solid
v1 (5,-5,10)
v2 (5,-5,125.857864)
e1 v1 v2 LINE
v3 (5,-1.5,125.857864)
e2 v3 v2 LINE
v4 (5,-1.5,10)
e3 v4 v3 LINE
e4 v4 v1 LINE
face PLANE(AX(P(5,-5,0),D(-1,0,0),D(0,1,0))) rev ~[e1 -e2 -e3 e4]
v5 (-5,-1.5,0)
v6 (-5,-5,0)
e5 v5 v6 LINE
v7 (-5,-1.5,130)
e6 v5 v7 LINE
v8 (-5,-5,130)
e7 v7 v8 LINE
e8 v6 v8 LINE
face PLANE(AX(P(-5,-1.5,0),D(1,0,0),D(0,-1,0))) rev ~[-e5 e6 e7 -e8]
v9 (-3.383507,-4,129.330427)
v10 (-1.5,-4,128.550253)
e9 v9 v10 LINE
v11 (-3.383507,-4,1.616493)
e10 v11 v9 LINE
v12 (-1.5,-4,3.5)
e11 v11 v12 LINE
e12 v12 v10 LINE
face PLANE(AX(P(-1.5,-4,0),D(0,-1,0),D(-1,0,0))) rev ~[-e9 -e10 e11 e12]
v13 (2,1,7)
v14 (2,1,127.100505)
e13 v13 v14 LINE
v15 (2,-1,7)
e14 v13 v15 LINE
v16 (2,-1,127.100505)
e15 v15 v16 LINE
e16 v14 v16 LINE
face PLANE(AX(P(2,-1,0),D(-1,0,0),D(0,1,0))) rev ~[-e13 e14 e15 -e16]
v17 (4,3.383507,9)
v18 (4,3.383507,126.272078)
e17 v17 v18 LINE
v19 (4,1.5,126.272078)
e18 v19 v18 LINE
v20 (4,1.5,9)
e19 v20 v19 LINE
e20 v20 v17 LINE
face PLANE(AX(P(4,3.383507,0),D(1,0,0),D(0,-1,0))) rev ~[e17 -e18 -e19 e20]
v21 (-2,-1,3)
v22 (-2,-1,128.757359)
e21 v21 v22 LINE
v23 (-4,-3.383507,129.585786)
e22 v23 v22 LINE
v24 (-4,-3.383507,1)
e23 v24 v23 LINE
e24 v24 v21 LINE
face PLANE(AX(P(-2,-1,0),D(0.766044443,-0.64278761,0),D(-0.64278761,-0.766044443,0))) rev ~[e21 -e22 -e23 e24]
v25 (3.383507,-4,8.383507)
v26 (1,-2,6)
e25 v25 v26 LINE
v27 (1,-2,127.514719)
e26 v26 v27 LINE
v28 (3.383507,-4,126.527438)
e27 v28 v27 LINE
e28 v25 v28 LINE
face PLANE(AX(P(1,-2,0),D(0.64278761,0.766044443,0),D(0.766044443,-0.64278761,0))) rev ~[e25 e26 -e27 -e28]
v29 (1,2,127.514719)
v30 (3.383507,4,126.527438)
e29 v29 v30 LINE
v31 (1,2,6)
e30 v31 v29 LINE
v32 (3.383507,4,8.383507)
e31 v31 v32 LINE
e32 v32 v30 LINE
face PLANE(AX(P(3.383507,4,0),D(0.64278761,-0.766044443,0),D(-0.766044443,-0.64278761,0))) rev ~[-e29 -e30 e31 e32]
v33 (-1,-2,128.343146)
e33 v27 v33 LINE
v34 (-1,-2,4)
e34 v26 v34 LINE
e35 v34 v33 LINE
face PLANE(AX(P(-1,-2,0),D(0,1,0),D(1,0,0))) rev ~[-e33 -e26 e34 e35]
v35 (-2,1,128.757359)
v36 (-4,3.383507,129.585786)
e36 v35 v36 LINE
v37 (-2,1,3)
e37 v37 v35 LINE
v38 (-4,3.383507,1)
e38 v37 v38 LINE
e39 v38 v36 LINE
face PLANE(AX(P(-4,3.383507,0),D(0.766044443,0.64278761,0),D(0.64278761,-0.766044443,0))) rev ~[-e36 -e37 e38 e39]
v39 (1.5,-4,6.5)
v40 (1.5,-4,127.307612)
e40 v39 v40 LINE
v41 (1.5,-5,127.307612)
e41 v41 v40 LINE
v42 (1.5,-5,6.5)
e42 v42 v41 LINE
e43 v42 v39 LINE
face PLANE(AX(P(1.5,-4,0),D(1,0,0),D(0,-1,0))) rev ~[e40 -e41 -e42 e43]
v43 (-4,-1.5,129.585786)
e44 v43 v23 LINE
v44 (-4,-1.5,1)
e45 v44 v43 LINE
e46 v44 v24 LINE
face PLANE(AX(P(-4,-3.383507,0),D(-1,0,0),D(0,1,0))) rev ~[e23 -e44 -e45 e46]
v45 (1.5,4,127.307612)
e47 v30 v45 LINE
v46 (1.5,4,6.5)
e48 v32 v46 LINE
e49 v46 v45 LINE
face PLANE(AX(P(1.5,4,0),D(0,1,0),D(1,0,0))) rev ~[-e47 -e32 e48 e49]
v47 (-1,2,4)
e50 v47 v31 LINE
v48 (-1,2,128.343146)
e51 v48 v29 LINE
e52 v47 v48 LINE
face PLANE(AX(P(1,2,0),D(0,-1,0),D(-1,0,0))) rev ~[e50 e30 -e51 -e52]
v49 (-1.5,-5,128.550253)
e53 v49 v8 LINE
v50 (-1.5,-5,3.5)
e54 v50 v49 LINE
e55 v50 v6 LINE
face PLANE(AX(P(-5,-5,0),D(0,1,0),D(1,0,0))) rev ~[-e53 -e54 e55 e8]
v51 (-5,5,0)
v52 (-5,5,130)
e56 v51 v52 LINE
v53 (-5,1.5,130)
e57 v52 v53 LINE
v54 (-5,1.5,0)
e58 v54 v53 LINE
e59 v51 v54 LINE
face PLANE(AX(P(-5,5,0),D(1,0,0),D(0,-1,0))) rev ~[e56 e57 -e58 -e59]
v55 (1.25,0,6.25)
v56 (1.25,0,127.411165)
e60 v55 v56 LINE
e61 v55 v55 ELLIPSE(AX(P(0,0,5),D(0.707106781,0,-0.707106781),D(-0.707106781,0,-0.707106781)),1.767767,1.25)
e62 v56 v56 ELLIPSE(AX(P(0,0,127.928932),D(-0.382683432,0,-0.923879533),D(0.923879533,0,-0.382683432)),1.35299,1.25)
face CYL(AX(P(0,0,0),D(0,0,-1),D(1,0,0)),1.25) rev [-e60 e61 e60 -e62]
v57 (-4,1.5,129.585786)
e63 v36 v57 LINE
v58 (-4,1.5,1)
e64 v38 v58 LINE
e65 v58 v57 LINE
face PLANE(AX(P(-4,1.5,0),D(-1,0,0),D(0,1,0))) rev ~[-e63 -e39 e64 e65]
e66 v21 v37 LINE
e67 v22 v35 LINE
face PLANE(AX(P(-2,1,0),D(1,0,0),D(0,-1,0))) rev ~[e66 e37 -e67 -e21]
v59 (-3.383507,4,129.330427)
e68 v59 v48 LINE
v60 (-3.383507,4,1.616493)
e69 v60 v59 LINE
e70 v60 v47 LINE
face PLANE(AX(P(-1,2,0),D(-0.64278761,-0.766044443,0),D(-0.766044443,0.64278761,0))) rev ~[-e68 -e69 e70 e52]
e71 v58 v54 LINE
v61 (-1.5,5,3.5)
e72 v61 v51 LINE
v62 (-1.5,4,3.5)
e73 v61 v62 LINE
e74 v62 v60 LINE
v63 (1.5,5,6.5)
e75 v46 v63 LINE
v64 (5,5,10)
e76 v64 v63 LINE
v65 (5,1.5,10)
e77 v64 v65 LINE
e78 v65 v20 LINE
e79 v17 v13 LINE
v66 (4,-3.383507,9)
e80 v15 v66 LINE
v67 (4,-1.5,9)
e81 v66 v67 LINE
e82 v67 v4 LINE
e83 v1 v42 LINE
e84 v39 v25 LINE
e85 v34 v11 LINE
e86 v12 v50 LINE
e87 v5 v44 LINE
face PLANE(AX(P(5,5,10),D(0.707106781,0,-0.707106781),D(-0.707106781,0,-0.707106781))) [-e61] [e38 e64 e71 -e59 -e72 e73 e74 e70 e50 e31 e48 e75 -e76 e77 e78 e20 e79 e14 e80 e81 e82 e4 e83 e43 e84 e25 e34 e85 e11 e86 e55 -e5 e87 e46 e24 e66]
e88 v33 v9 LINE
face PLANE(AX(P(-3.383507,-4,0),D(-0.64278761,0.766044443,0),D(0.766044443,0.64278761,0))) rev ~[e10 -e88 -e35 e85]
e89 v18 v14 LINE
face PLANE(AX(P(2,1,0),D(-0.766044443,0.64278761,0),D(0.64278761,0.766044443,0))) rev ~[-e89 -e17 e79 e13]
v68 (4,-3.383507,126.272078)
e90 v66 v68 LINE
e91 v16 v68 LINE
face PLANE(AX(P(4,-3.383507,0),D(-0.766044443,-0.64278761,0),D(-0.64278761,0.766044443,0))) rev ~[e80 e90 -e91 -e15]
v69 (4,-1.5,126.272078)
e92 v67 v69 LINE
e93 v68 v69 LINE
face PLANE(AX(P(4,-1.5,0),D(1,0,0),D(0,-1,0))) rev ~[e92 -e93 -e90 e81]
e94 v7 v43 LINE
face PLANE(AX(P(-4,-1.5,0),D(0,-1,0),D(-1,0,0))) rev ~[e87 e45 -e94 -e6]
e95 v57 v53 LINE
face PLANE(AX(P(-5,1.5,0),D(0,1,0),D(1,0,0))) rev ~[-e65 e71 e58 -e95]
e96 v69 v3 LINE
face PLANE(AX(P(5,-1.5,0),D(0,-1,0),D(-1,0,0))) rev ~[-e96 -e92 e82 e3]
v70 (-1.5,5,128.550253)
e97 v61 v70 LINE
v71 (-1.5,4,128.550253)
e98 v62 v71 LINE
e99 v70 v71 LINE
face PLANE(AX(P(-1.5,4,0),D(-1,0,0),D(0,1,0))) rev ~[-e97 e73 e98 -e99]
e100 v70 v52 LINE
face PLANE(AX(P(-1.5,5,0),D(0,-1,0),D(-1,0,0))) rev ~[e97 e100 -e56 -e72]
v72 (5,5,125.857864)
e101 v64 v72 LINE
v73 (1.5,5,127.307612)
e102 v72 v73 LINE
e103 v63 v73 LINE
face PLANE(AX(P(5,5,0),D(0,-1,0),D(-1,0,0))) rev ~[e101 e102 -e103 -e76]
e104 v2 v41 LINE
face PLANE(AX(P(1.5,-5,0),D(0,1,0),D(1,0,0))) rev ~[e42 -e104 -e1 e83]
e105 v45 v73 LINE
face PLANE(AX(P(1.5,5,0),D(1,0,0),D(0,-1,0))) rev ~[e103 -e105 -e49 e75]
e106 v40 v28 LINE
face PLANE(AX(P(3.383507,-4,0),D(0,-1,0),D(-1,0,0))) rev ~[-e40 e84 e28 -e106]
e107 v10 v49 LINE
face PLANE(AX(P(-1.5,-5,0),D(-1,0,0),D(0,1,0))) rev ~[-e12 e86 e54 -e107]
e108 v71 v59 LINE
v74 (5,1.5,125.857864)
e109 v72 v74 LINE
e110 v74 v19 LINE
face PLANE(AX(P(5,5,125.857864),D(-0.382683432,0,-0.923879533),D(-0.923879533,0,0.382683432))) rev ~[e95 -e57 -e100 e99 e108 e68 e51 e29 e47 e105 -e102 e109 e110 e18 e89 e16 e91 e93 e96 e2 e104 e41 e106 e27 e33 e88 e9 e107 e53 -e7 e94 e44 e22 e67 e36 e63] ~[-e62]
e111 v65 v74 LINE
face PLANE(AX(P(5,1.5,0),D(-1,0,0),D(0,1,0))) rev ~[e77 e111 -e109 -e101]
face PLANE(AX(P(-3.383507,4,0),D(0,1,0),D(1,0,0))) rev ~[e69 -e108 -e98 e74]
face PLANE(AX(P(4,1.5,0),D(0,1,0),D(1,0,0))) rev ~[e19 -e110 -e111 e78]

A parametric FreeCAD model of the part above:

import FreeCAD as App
import Part
import Sketcher
from FreeCAD import Vector
Q = App.Units.Quantity


def add_polygon(sketch, points):
    """Adds a closed chain of lines whose ends are joined by coincident constraints."""
    first, n = sketch.GeometryCount, len(points)
    for a, b in zip(points, points[1:] + points[:1]):
        sketch.addGeometry(Part.LineSegment(App.Vector(*a, 0), App.Vector(*b, 0)), False)
    for i in range(n):
        sketch.addConstraint(Sketcher.Constraint("Coincident", first + i, 2, first + (i + 1) % n, 1))

doc = App.newDocument("Part")
params = doc.addObject("Spreadsheet::Sheet", "Params")
for row, (alias, value) in enumerate([
    ("sketch1_diameter", "2.5 mm"),
    ("sketch1_width", "2 mm"),
    ("sketch1_width2", "1 mm"),
    ("sketch1_width3", "3.5 mm"),
    ("pad1_length", "130 mm"),
    ("sketch2_width", "10 mm"),
], start=1):
    params.set(f"A{row}", alias)
    params.set(f"B{row}", "=" + value)
    params.setAlias(f"B{row}", alias)

body = doc.addObject("PartDesign::Body", "Body")

sketch1 = doc.addObject("Sketcher::SketchObject", "Sketch")
body.addObject(sketch1)
sketch1.AttachmentSupport = (doc.XY_Plane, [""])
sketch1.MapMode = "FlatFace"
add_polygon(sketch1, [(-1, -2), (1, -2), (3.4, -4), (1.5, -4), (1.5, -5), (5, -5), (5, -1.5), (4, -1.5), (4, -3.4), (2, -1), (2, 1), (4, 3.4), (4, 1.5), (5, 1.5), (5, 5), (1.5, 5), (1.5, 4), (3.4, 4), (1, 2), (-1, 2), (-3.4, 4), (-1.5, 4), (-1.5, 5), (-5, 5), (-5, 1.5), (-4, 1.5), (-4, 3.4), (-2, 1), (-2, -1), (-4, -3.4), (-4, -1.5), (-5, -1.5), (-5, -5), (-1.5, -5), (-1.5, -4), (-3.4, -4)])
sketch1.addGeometry(Part.Circle(Vector(0, 0, 0), Vector(0, 0, 1), 1.2), False)
sketch1.addConstraint([
    Sketcher.Constraint("Horizontal", 0),
    Sketcher.Constraint("Horizontal", 2),
    Sketcher.Constraint("Vertical", 3),
    Sketcher.Constraint("Horizontal", 4),
    Sketcher.Constraint("Vertical", 5),
    Sketcher.Constraint("Horizontal", 6),
    Sketcher.Constraint("Vertical", 7),
    Sketcher.Constraint("Vertical", 9),
    Sketcher.Constraint("Vertical", 11),
    Sketcher.Constraint("Horizontal", 12),
    Sketcher.Constraint("Vertical", 13),
    Sketcher.Constraint("Horizontal", 14),
    Sketcher.Constraint("Vertical", 15),
    Sketcher.Constraint("Horizontal", 16),
    Sketcher.Constraint("Horizontal", 18),
    Sketcher.Constraint("Horizontal", 20),
    Sketcher.Constraint("Vertical", 21),
    Sketcher.Constraint("Horizontal", 22),
    Sketcher.Constraint("Vertical", 23),
    Sketcher.Constraint("Horizontal", 24),
    Sketcher.Constraint("Vertical", 25),
    Sketcher.Constraint("Vertical", 27),
    Sketcher.Constraint("Vertical", 29),
    Sketcher.Constraint("Horizontal", 30),
    Sketcher.Constraint("Vertical", 31),
    Sketcher.Constraint("Horizontal", 32),
    Sketcher.Constraint("Vertical", 33),
    Sketcher.Constraint("Horizontal", 34),
    Sketcher.Constraint("Coincident", 36, 3, -1, 1),
    Sketcher.Constraint("Symmetric", 0, 2, 18, 2, -1, 1),
    Sketcher.Constraint("Symmetric", 1, 2, 19, 2, -1, 1),
    Sketcher.Constraint("Symmetric", 3, 2, 21, 2, -1, 1),
    Sketcher.Constraint("Symmetric", 5, 2, 23, 2, -1, 1),
    Sketcher.Constraint("Symmetric", 7, 2, 25, 2, -1, 1),
    Sketcher.Constraint("Symmetric", 8, 2, 26, 2, -1, 1),
    Sketcher.Constraint("Symmetric", 10, 2, 28, 2, -1, 1),
    Sketcher.Constraint("Symmetric", 12, 2, 30, 2, -1, 1),
    Sketcher.Constraint("Symmetric", 14, 2, 32, 2, -1, 1),
    Sketcher.Constraint("Symmetric", 16, 2, 34, 2, -1, 1),
    Sketcher.Constraint("Symmetric", 16, 2, 19, 2, -2),
    Sketcher.Constraint("Symmetric", 14, 2, 21, 2, -2),
    Sketcher.Constraint("Symmetric", 12, 2, 23, 2, -2),
    Sketcher.Constraint("Symmetric", 10, 2, 25, 2, -2),
    Sketcher.Constraint("Perpendicular", 1, 10),
    Sketcher.Constraint("Perpendicular", 8, 17),
    Sketcher.Constraint("Perpendicular", 19, 28),
    Sketcher.Constraint("Perpendicular", 26, 35),
    Sketcher.Constraint("Horizontal", 9, 2, 26, 2),
    Sketcher.Constraint("Equal", 30, 3),
    Sketcher.Constraint("Equal", 32, 5),
    Sketcher.Constraint("Equal", 34, 7),
    Sketcher.Constraint("Equal", 18, 9),
    Sketcher.Constraint("Equal", 1, 8),
    Sketcher.Constraint("Diameter", 36, 2.5),
    Sketcher.Constraint("DistanceX", 0, 1, 0, 2, 2.0),
    Sketcher.Constraint("DistanceX", 6, 2, 6, 1, 1.0),
    Sketcher.Constraint("Angle", 1, Q("-40 deg")),
    Sketcher.Constraint("DistanceX", 4, 1, 4, 2, 3.5),
    Sketcher.Constraint("DistanceY", 0, 2, -1, 1, 2.0),
    Sketcher.Constraint("DistanceY", 1, 2, -1, 1, 4.0),
])
sketch1.setExpression("Constraints[89]", "Params.sketch1_diameter")
sketch1.setExpression("Constraints[90]", "Params.sketch1_width")
sketch1.setExpression("Constraints[91]", "Params.sketch1_width2")
sketch1.setExpression("Constraints[93]", "Params.sketch1_width3")
pad1 = doc.addObject("PartDesign::Pad", "Pad")
body.addObject(pad1)
pad1.Profile = sketch1
pad1.setExpression("Length", "Params.pad1_length")

sketch2 = doc.addObject("Sketcher::SketchObject", "Sketch001")
body.addObject(sketch2)
sketch2.AttachmentSupport = (doc.XZ_Plane, [""])
sketch2.MapMode = "FlatFace"
sketch2.AttachmentOffset = App.Placement(Vector(0, 0, -5), App.Rotation())
add_polygon(sketch2, [(5, 0), (-5, 0), (5, 10)])
add_polygon(sketch2, [(5, 125.9), (-5, 130), (5, 130)])
sketch2.addConstraint([
    Sketcher.Constraint("Horizontal", 0),
    Sketcher.Constraint("Vertical", 2),
    Sketcher.Constraint("Horizontal", 4),
    Sketcher.Constraint("Vertical", 5),
    Sketcher.Constraint("Symmetric", 0, 2, 2, 2, -1, 1),
    Sketcher.Constraint("Vertical", 0, 2, 3, 2),
    Sketcher.Constraint("Vertical", 2, 2, 4, 2),
    Sketcher.Constraint("Equal", 4, 2),
    Sketcher.Constraint("DistanceX", 0, 2, 0, 1, 10.0),
    Sketcher.Constraint("DistanceY", -1, 1, 3, 2, 130.0),
    Sketcher.Constraint("Angle", 3, Q("157.5 deg")),
])
sketch2.setExpression("Constraints[14]", "Params.sketch2_width")
pocket1 = doc.addObject("PartDesign::Pocket", "Pocket")
body.addObject(pocket1)
pocket1.Profile = sketch2
pocket1.Type = "ThroughAll"
pocket1.Reversed = True

doc.recompute()
